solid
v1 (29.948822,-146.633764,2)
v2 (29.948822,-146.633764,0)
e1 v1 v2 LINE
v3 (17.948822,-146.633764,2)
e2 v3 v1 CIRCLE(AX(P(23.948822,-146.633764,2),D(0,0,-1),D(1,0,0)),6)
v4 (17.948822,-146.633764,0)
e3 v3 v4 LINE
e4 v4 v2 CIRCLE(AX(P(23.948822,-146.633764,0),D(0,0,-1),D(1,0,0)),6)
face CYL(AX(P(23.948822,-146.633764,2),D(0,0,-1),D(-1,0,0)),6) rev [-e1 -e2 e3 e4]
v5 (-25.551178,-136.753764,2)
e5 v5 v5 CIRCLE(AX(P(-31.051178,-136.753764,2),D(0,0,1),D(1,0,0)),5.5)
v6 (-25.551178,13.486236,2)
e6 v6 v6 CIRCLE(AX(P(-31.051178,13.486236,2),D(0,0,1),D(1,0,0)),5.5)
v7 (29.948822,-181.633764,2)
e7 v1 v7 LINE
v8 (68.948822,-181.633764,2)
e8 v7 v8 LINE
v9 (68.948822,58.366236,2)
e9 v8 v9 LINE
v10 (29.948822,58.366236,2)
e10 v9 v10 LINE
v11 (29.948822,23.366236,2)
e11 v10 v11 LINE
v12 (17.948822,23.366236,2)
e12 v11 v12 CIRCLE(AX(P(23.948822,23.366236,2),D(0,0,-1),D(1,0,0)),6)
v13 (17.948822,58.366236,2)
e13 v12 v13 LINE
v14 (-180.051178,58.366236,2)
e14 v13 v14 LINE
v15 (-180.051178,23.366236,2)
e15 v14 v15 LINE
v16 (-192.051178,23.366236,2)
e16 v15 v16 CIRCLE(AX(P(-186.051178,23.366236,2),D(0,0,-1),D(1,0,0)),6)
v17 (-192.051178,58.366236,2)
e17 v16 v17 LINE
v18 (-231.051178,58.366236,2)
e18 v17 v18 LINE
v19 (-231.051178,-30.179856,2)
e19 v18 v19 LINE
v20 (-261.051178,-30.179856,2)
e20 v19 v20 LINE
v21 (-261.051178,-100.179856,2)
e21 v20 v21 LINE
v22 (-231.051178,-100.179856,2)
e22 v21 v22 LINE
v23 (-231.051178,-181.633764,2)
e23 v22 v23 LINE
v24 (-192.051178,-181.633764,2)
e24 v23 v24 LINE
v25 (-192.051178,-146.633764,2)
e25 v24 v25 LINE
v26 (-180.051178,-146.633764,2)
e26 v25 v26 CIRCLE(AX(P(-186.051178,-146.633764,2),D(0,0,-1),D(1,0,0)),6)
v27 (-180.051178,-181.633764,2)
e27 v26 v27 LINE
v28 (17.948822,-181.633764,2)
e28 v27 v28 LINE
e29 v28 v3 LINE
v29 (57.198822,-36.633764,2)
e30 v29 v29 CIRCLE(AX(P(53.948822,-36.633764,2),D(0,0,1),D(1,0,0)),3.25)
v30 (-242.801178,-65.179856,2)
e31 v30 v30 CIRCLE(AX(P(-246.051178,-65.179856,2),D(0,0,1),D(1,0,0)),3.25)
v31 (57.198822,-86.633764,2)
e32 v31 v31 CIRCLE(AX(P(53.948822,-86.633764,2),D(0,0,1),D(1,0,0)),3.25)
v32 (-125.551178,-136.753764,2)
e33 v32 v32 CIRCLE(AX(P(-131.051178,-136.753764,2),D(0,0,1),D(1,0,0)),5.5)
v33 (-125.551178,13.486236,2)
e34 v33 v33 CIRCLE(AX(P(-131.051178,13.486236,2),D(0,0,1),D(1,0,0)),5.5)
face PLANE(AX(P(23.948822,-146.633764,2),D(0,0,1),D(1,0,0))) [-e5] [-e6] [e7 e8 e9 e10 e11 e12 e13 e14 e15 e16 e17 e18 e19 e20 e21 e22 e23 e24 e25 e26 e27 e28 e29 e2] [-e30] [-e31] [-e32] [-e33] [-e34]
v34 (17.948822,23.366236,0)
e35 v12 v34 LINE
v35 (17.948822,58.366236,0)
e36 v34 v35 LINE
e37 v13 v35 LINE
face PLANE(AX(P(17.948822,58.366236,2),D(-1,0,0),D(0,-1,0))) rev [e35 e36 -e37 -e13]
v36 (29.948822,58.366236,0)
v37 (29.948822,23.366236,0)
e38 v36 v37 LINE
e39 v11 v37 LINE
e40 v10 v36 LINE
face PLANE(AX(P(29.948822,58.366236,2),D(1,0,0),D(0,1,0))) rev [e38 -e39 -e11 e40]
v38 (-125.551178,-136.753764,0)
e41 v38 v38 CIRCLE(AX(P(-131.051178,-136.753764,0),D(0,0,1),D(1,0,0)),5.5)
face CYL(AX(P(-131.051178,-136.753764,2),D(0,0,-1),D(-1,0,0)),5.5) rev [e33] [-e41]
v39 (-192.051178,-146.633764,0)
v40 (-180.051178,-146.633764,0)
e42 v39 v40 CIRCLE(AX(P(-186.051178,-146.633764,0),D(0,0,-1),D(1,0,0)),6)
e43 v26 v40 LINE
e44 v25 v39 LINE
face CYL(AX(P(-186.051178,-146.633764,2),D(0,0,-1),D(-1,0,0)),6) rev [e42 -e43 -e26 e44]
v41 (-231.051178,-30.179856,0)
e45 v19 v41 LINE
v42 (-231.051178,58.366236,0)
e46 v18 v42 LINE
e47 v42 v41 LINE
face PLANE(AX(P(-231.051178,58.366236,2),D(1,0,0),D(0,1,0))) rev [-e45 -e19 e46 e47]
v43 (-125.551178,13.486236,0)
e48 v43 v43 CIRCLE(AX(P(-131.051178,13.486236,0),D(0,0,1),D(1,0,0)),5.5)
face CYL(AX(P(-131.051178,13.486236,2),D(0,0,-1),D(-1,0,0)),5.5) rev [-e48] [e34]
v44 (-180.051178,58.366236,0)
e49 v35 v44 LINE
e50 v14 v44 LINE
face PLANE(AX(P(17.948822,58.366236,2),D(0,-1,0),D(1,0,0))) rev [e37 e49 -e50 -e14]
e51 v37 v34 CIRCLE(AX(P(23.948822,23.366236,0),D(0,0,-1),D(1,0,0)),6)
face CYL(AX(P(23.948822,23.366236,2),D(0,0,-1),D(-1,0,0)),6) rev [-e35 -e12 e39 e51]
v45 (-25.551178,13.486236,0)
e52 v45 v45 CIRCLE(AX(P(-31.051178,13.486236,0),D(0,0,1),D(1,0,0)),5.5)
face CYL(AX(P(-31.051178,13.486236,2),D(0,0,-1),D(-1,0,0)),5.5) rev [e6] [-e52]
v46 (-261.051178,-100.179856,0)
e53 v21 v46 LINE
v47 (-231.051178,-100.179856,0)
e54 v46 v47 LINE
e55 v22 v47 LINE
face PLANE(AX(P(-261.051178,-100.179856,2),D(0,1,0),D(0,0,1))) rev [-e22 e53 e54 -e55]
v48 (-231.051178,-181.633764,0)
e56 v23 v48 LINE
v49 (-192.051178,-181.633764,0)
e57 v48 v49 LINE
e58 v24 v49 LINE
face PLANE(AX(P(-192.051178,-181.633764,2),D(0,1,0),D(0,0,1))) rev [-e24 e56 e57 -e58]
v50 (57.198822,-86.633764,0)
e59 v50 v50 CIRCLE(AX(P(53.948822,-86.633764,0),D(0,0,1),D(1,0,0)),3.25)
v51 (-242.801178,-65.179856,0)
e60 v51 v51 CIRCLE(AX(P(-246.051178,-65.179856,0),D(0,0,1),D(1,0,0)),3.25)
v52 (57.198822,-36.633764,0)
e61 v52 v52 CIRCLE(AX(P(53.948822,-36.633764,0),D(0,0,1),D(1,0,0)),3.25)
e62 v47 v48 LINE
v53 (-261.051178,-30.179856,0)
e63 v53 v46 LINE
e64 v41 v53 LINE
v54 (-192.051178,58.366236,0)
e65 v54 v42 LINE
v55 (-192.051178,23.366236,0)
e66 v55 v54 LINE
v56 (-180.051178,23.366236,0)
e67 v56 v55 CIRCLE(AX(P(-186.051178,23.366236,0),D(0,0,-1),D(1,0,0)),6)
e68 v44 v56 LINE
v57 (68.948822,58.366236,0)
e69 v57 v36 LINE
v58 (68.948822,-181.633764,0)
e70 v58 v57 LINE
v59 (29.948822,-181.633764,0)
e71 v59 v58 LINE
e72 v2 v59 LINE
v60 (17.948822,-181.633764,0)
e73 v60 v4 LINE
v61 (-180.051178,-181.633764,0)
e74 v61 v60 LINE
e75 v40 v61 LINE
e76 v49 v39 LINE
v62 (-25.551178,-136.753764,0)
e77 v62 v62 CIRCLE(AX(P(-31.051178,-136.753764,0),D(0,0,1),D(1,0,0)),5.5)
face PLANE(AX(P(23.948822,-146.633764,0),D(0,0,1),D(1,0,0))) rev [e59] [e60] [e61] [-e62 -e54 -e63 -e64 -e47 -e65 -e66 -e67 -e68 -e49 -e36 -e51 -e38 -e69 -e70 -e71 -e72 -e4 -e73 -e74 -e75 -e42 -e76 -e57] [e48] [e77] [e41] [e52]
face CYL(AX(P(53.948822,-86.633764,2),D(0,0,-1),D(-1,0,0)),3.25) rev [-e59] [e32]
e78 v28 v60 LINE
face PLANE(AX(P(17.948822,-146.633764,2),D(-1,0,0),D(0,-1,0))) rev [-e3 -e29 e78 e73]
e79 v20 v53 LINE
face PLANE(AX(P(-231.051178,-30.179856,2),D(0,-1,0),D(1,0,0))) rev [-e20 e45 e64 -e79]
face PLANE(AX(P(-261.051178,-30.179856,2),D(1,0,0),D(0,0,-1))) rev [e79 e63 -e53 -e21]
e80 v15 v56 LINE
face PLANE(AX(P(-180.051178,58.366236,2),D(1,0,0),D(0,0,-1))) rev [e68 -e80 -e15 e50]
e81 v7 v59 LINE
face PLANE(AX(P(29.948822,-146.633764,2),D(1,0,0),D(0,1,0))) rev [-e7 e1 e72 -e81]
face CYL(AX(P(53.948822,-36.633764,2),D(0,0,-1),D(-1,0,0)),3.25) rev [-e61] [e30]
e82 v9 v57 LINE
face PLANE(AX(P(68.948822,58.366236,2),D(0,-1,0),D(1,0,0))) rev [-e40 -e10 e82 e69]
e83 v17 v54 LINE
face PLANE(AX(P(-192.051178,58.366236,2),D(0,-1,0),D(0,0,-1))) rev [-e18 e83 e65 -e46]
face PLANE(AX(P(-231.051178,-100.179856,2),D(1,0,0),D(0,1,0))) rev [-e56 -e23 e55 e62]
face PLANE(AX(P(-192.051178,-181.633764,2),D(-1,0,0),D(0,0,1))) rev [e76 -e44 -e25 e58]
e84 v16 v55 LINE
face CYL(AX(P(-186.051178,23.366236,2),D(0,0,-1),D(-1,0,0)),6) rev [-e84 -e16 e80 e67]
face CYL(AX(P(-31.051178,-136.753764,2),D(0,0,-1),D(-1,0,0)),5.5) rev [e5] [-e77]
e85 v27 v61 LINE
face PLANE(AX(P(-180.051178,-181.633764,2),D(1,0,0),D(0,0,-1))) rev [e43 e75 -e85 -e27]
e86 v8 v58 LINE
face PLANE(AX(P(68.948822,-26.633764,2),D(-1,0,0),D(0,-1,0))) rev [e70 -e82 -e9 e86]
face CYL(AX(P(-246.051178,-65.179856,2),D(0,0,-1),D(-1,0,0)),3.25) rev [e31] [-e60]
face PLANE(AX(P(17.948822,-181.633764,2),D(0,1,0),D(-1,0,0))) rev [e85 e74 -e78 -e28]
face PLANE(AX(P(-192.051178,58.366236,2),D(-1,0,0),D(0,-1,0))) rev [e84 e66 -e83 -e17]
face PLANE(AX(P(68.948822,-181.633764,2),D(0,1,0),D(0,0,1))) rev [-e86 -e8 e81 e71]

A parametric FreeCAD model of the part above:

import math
import FreeCAD as App
import Part
import Sketcher
from FreeCAD import Vector
Q = App.Units.Quantity

doc = App.newDocument("Part")
body = doc.addObject("PartDesign::Body", "Body")

sketch1 = body.newObject("Sketcher::SketchObject", "Sketch")
sketch1.AttachmentSupport = (doc.getObject("XY_Plane"), [""])
sketch1.MapMode = "FlatFace"
sketch1.addGeometry(Part.LineSegment(Vector(68.948822, 58.366236, 0), Vector(29.948822, 58.366236, 0)), False)
sketch1.addGeometry(Part.LineSegment(Vector(29.948822, 58.366236, 0), Vector(29.948822, 23.366236, 0)), False)
sketch1.addGeometry(Part.ArcOfCircle(Part.Circle(Vector(23.948822, 23.366236, 0), Vector(0, 0, 1), 6), math.radians(180), math.radians(360)), False)
sketch1.addGeometry(Part.LineSegment(Vector(17.948822, 23.366236, 0), Vector(17.948822, 58.366236, 0)), False)
sketch1.addGeometry(Part.LineSegment(Vector(17.948822, 58.366236, 0), Vector(-180.051178, 58.366236, 0)), False)
sketch1.addGeometry(Part.LineSegment(Vector(-180.051178, 58.366236, 0), Vector(-180.051178, 23.366236, 0)), False)
sketch1.addGeometry(Part.ArcOfCircle(Part.Circle(Vector(-186.051178, 23.366236, 0), Vector(0, 0, 1), 6), math.radians(180), math.radians(360)), False)
sketch1.addGeometry(Part.LineSegment(Vector(-192.051178, 23.366236, 0), Vector(-192.051178, 58.366236, 0)), False)
sketch1.addGeometry(Part.LineSegment(Vector(-192.051178, 58.366236, 0), Vector(-231.051178, 58.366236, 0)), False)
sketch1.addGeometry(Part.LineSegment(Vector(-231.051178, 58.366236, 0), Vector(-231.051178, -30.179856, 0)), False)
sketch1.addGeometry(Part.LineSegment(Vector(-231.051178, -30.179856, 0), Vector(-261.051178, -30.179856, 0)), False)
sketch1.addGeometry(Part.LineSegment(Vector(-261.051178, -30.179856, 0), Vector(-261.051178, -100.179856, 0)), False)
sketch1.addGeometry(Part.LineSegment(Vector(-261.051178, -100.179856, 0), Vector(-231.051178, -100.179856, 0)), False)
sketch1.addGeometry(Part.LineSegment(Vector(-231.051178, -100.179856, 0), Vector(-231.051178, -181.633764, 0)), False)
sketch1.addGeometry(Part.LineSegment(Vector(-231.051178, -181.633764, 0), Vector(-192.051178, -181.633764, 0)), False)
sketch1.addGeometry(Part.LineSegment(Vector(-192.051178, -181.633764, 0), Vector(-192.051178, -146.633764, 0)), False)
sketch1.addGeometry(Part.ArcOfCircle(Part.Circle(Vector(-186.051178, -146.633764, 0), Vector(0, 0, 1), 6), math.radians(0), math.radians(180)), False)
sketch1.addGeometry(Part.LineSegment(Vector(-180.051178, -146.633764, 0), Vector(-180.051178, -181.633764, 0)), False)
sketch1.addGeometry(Part.LineSegment(Vector(-180.051178, -181.633764, 0), Vector(17.948822, -181.633764, 0)), False)
sketch1.addGeometry(Part.LineSegment(Vector(17.948822, -181.633764, 0), Vector(17.948822, -146.633764, 0)), False)
sketch1.addGeometry(Part.ArcOfCircle(Part.Circle(Vector(23.948822, -146.633764, 0), Vector(0, 0, 1), 6), math.radians(0), math.radians(180)), False)
sketch1.addGeometry(Part.LineSegment(Vector(29.948822, -146.633764, 0), Vector(29.948822, -181.633764, 0)), False)
sketch1.addGeometry(Part.LineSegment(Vector(29.948822, -181.633764, 0), Vector(68.948822, -181.633764, 0)), False)
sketch1.addGeometry(Part.LineSegment(Vector(68.948822, -181.633764, 0), Vector(68.948822, 58.366236, 0)), False)
sketch1.addGeometry(Part.Circle(Vector(-131.051178, -136.753764, 0), Vector(0, 0, 1), 5.5), False)
sketch1.addGeometry(Part.Circle(Vector(-246.051178, -65.179856, 0), Vector(0, 0, 1), 3.25), False)
sketch1.addGeometry(Part.Circle(Vector(-31.051178, -136.753764, 0), Vector(0, 0, 1), 5.5), False)
sketch1.addGeometry(Part.Circle(Vector(53.948822, -86.633764, 0), Vector(0, 0, 1), 3.25), False)
sketch1.addGeometry(Part.Circle(Vector(-131.051178, 13.486236, 0), Vector(0, 0, 1), 5.5), False)
sketch1.addGeometry(Part.Circle(Vector(53.948822, -36.633764, 0), Vector(0, 0, 1), 3.25), False)
sketch1.addGeometry(Part.Circle(Vector(-31.051178, 13.486236, 0), Vector(0, 0, 1), 5.5), False)
sketch1.addConstraint(Sketcher.Constraint("Coincident", 0, 2, 1, 1))
sketch1.addConstraint(Sketcher.Constraint("Tangent", 1, 2, 2, 2))
sketch1.addConstraint(Sketcher.Constraint("Tangent", 2, 1, 3, 1))
sketch1.addConstraint(Sketcher.Constraint("Coincident", 3, 2, 4, 1))
sketch1.addConstraint(Sketcher.Constraint("Coincident", 4, 2, 5, 1))
sketch1.addConstraint(Sketcher.Constraint("Tangent", 5, 2, 6, 2))
sketch1.addConstraint(Sketcher.Constraint("Tangent", 6, 1, 7, 1))
sketch1.addConstraint(Sketcher.Constraint("Coincident", 7, 2, 8, 1))
sketch1.addConstraint(Sketcher.Constraint("Coincident", 8, 2, 9, 1))
sketch1.addConstraint(Sketcher.Constraint("Coincident", 9, 2, 10, 1))
sketch1.addConstraint(Sketcher.Constraint("Coincident", 10, 2, 11, 1))
sketch1.addConstraint(Sketcher.Constraint("Coincident", 11, 2, 12, 1))
sketch1.addConstraint(Sketcher.Constraint("Coincident", 12, 2, 13, 1))
sketch1.addConstraint(Sketcher.Constraint("Coincident", 13, 2, 14, 1))
sketch1.addConstraint(Sketcher.Constraint("Coincident", 14, 2, 15, 1))
sketch1.addConstraint(Sketcher.Constraint("Tangent", 15, 2, 16, 2))
sketch1.addConstraint(Sketcher.Constraint("Tangent", 16, 1, 17, 1))
sketch1.addConstraint(Sketcher.Constraint("Coincident", 17, 2, 18, 1))
sketch1.addConstraint(Sketcher.Constraint("Coincident", 18, 2, 19, 1))
sketch1.addConstraint(Sketcher.Constraint("Tangent", 19, 2, 20, 2))
sketch1.addConstraint(Sketcher.Constraint("Tangent", 20, 1, 21, 1))
sketch1.addConstraint(Sketcher.Constraint("Coincident", 21, 2, 22, 1))
sketch1.addConstraint(Sketcher.Constraint("Coincident", 22, 2, 23, 1))
sketch1.addConstraint(Sketcher.Constraint("Coincident", 23, 2, 0, 1))
sketch1.addConstraint(Sketcher.Constraint("Horizontal", 0))
sketch1.addConstraint(Sketcher.Constraint("Vertical", 1))
sketch1.addConstraint(Sketcher.Constraint("Vertical", 3))
sketch1.addConstraint(Sketcher.Constraint("Horizontal", 4))
sketch1.addConstraint(Sketcher.Constraint("Vertical", 5))
sketch1.addConstraint(Sketcher.Constraint("Vertical", 7))
sketch1.addConstraint(Sketcher.Constraint("Horizontal", 8))
sketch1.addConstraint(Sketcher.Constraint("Vertical", 9))
sketch1.addConstraint(Sketcher.Constraint("Horizontal", 10))
sketch1.addConstraint(Sketcher.Constraint("Vertical", 11))
sketch1.addConstraint(Sketcher.Constraint("Horizontal", 12))
sketch1.addConstraint(Sketcher.Constraint("Vertical", 13))
sketch1.addConstraint(Sketcher.Constraint("Horizontal", 14))
sketch1.addConstraint(Sketcher.Constraint("Vertical", 15))
sketch1.addConstraint(Sketcher.Constraint("Vertical", 17))
sketch1.addConstraint(Sketcher.Constraint("Horizontal", 18))
sketch1.addConstraint(Sketcher.Constraint("Vertical", 19))
sketch1.addConstraint(Sketcher.Constraint("Vertical", 21))
sketch1.addConstraint(Sketcher.Constraint("Horizontal", 22))
sketch1.addConstraint(Sketcher.Constraint("Vertical", 23))
sketch1.addConstraint(Sketcher.Constraint("Equal", 2, 6))
sketch1.addConstraint(Sketcher.Constraint("Equal", 6, 16))
sketch1.addConstraint(Sketcher.Constraint("Equal", 16, 20))
sketch1.addConstraint(Sketcher.Constraint("Equal", 24, 26))
sketch1.addConstraint(Sketcher.Constraint("Equal", 25, 27))
sketch1.addConstraint(Sketcher.Constraint("Equal", 26, 28))
sketch1.addConstraint(Sketcher.Constraint("Equal", 27, 29))
sketch1.addConstraint(Sketcher.Constraint("Equal", 28, 30))
sketch1.addConstraint(Sketcher.Constraint("Horizontal", 2, 3, 6, 3))
sketch1.addConstraint(Sketcher.Constraint("Horizontal", 16, 3, 20, 3))
sketch1.addConstraint(Sketcher.Constraint("Horizontal", 24, 3, 26, 3))
sketch1.addConstraint(Sketcher.Constraint("Horizontal", 28, 3, 30, 3))
sketch1.addConstraint(Sketcher.Constraint("Horizontal", 0, 2, 3, 2))
sketch1.addConstraint(Sketcher.Constraint("Horizontal", 4, 2, 7, 2))
sketch1.addConstraint(Sketcher.Constraint("Horizontal", 14, 2, 17, 2))
sketch1.addConstraint(Sketcher.Constraint("Horizontal", 18, 2, 21, 2))
sketch1.addConstraint(Sketcher.Constraint("Vertical", 6, 3, 16, 3))
sketch1.addConstraint(Sketcher.Constraint("Vertical", 2, 3, 20, 3))
sketch1.addConstraint(Sketcher.Constraint("Vertical", 24, 3, 28, 3))
sketch1.addConstraint(Sketcher.Constraint("Vertical", 27, 3, 29, 3))
sketch1.addConstraint(Sketcher.Constraint("Vertical", 26, 3, 30, 3))
sketch1.addConstraint(Sketcher.Constraint("Vertical", 9, 2, 12, 2))
sketch1.addConstraint(Sketcher.Constraint("Equal", 0, 8))
sketch1.addConstraint(Sketcher.Constraint("Equal", 7, 15))
sketch1.addConstraint(Sketcher.Constraint("Diameter", 24, Q("11 mm")))
sketch1.addConstraint(Sketcher.Constraint("Radius", 2, Q("6 mm")))
sketch1.addConstraint(Sketcher.Constraint("Diameter", 25, Q("6.5 mm")))
sketch1.addConstraint(Sketcher.Constraint("DistanceX", 0, 2, 0, 1, Q("39 mm")))
sketch1.addConstraint(Sketcher.Constraint("DistanceX", 4, 2, 4, 1, Q("198 mm")))
sketch1.addConstraint(Sketcher.Constraint("DistanceX", 10, 2, 10, 1, Q("30 mm")))
sketch1.addConstraint(Sketcher.Constraint("DistanceY", 1, 2, 1, 1, Q("35 mm")))
sketch1.addConstraint(Sketcher.Constraint("DistanceY", 11, 2, 11, 1, Q("70 mm")))
sketch1.addConstraint(Sketcher.Constraint("DistanceY", 23, 1, 23, 2, Q("240 mm")))
sketch1.addConstraint(Sketcher.Constraint("DistanceX", 16, 3, 24, 3, Q("55 mm")))
sketch1.addConstraint(Sketcher.Constraint("DistanceX", 25, 3, 16, 3, Q("60 mm")))
sketch1.addConstraint(Sketcher.Constraint("DistanceX", 26, 3, 20, 3, Q("55 mm")))
sketch1.addConstraint(Sketcher.Constraint("DistanceX", 20, 3, 27, 3, Q("30 mm")))
sketch1.addConstraint(Sketcher.Constraint("DistanceY", 20, 3, 27, 3, Q("60 mm")))
sketch1.addConstraint(Sketcher.Constraint("DistanceY", 27, 3, 29, 3, Q("50 mm")))
sketch1.addConstraint(Sketcher.Constraint("DistanceY", 25, 3, 9, 2, Q("35 mm")))
sketch1.addConstraint(Sketcher.Constraint("DistanceY", 16, 3, 24, 3, Q("9.88 mm")))
sketch1.addConstraint(Sketcher.Constraint("DistanceY", 28, 3, 6, 3, Q("9.88 mm")))
sketch1.addConstraint(Sketcher.Constraint("DistanceY", 9, 2, 9, 1, Q("88.546092 mm")))
sketch1.addConstraint(Sketcher.Constraint("DistanceX", -1, 1, 2, 3, Q("23.948822 mm")))
sketch1.addConstraint(Sketcher.Constraint("DistanceY", -1, 1, 2, 3, Q("23.366236 mm")))
pad1 = body.newObject("PartDesign::Pad", "Pad")
pad1.Profile = sketch1
pad1.Length = 2

doc.recompute()
